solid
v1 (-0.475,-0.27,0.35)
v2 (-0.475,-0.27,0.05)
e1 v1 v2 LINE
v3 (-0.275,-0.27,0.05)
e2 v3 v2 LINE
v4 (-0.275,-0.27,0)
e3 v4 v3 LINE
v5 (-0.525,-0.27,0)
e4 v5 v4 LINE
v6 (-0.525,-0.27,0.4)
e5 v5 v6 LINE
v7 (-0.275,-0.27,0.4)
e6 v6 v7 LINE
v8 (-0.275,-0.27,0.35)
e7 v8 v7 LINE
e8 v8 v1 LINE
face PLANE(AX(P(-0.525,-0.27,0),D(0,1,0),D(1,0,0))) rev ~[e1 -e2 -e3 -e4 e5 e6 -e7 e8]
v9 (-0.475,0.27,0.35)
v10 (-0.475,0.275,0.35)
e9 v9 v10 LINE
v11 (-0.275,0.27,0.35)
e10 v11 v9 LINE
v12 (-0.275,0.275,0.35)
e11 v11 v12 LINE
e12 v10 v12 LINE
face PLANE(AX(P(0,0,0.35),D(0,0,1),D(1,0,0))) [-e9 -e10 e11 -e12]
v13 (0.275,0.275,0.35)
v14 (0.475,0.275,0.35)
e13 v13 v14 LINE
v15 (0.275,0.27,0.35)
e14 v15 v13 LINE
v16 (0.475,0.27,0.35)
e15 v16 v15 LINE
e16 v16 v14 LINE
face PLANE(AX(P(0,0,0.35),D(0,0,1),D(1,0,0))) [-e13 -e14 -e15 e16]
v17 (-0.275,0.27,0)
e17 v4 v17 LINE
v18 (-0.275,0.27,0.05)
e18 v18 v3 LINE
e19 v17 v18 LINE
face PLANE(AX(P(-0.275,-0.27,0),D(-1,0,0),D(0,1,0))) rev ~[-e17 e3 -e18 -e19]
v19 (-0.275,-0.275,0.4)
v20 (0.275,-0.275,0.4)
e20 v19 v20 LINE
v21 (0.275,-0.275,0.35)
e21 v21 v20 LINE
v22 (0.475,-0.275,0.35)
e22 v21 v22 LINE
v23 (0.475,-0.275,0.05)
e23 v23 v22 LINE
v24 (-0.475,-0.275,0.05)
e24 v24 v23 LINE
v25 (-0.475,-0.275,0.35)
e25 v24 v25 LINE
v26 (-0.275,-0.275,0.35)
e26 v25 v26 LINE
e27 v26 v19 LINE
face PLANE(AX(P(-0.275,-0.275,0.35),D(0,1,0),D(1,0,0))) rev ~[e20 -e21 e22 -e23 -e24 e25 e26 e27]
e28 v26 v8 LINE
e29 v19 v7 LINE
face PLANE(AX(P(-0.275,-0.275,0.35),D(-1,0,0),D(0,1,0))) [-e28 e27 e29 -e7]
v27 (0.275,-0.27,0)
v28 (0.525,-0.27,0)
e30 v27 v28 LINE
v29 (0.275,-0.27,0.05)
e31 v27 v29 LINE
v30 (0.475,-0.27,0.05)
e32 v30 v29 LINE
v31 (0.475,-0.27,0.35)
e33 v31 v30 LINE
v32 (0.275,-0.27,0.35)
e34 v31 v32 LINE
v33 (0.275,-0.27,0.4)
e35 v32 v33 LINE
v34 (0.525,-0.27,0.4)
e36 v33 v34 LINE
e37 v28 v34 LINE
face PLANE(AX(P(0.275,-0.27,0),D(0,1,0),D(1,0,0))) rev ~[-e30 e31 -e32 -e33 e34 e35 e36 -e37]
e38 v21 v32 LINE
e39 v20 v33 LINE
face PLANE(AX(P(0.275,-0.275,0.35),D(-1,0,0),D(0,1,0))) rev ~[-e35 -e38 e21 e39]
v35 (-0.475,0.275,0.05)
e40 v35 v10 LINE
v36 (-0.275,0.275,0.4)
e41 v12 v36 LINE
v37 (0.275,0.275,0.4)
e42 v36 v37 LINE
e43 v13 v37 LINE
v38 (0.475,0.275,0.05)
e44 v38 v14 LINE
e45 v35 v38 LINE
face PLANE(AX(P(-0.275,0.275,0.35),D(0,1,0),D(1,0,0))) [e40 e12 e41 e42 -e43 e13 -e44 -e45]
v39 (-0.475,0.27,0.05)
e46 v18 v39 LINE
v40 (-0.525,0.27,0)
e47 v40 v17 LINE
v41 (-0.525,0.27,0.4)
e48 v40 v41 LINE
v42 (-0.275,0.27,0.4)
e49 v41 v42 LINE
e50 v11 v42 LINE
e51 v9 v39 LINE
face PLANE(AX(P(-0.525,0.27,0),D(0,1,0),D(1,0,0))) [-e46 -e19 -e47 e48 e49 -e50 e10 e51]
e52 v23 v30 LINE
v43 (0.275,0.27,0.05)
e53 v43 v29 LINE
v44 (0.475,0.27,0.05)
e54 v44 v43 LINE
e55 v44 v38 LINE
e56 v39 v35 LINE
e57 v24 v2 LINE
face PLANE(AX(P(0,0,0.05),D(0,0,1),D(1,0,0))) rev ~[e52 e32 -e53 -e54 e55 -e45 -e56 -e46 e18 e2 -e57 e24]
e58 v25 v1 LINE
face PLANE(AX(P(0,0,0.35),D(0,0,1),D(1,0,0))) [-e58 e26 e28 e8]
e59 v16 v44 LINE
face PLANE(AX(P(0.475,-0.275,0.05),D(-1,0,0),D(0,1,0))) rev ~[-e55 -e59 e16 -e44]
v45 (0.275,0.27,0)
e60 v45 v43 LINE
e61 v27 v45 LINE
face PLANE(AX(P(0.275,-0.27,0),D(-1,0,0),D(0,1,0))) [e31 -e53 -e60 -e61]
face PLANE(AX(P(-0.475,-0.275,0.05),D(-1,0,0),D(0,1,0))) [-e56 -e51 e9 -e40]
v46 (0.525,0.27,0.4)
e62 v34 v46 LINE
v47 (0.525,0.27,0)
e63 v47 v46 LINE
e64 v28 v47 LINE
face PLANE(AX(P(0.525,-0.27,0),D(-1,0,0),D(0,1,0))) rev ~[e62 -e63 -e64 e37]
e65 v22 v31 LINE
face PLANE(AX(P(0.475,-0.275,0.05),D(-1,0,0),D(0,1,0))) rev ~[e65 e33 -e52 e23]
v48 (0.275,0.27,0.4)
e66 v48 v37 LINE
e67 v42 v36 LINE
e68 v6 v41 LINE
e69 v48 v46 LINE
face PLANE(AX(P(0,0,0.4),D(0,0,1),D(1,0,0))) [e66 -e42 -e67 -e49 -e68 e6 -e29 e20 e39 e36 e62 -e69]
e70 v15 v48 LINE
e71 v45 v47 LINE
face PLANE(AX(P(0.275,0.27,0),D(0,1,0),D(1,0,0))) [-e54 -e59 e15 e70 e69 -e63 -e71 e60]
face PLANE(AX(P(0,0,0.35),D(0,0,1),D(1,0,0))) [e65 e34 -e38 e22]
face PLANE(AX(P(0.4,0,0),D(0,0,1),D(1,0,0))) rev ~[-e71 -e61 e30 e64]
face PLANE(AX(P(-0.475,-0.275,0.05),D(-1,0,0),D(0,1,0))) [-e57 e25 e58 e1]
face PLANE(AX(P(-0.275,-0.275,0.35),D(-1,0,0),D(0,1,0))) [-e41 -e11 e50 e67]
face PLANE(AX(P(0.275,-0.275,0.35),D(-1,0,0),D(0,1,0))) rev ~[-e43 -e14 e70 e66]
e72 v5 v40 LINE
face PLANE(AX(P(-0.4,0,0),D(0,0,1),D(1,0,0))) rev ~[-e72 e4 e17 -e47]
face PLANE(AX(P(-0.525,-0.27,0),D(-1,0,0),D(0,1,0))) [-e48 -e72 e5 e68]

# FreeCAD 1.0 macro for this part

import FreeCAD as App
import Part
import Sketcher

doc = App.newDocument("Part")
body = doc.addObject("PartDesign::Body", "Body")

sketch1 = doc.addObject("Sketcher::SketchObject", "Sketch")
body.addObject(sketch1)
sketch1.AttachmentSupport = (doc.XY_Plane, [""])
sketch1.MapMode = "FlatFace"
sketch1.addGeometry([
    Part.LineSegment(App.Vector(-0.53, 0.27, 0), App.Vector(-0.53, -0.27, 0)),
    Part.LineSegment(App.Vector(-0.53, -0.27, 0), App.Vector(-0.28, -0.27, 0)),
    Part.LineSegment(App.Vector(-0.28, -0.27, 0), App.Vector(-0.28, 0.27, 0)),
    Part.LineSegment(App.Vector(-0.28, 0.27, 0), App.Vector(-0.53, 0.27, 0)),
], False)
sketch1.addConstraint([
    Sketcher.Constraint("Coincident", 0, 2, 1, 1),
    Sketcher.Constraint("Coincident", 1, 2, 2, 1),
    Sketcher.Constraint("Coincident", 2, 2, 3, 1),
    Sketcher.Constraint("Coincident", 3, 2, 0, 1),
    Sketcher.Constraint("Vertical", 0),
    Sketcher.Constraint("Horizontal", 1),
    Sketcher.Constraint("Vertical", 2),
    Sketcher.Constraint("Horizontal", 3),
    Sketcher.Constraint("DistanceX", 1, 1, 1, 2, 0.25),
    Sketcher.Constraint("DistanceY", 0, 2, 0, 1, 0.54),
    Sketcher.Constraint("DistanceY", 0, 2, -1, 1, 0.27),
    Sketcher.Constraint("DistanceX", 0, 2, -1, 1, 0.525),
])
pad1 = doc.addObject("PartDesign::Pad", "Pad")
body.addObject(pad1)
pad1.Profile = sketch1
pad1.Length = 0.4
body2 = doc.addObject("PartDesign::Body", "Body001")

sketch2 = doc.addObject("Sketcher::SketchObject", "Sketch001")
body2.addObject(sketch2)
sketch2.AttachmentSupport = (doc.getObject("XY_Plane001"), [""])
sketch2.MapMode = "FlatFace"
sketch2.addGeometry([
    Part.LineSegment(App.Vector(0.28, 0.27, 0), App.Vector(0.28, -0.27, 0)),
    Part.LineSegment(App.Vector(0.28, -0.27, 0), App.Vector(0.53, -0.27, 0)),
    Part.LineSegment(App.Vector(0.53, -0.27, 0), App.Vector(0.53, 0.27, 0)),
    Part.LineSegment(App.Vector(0.53, 0.27, 0), App.Vector(0.28, 0.27, 0)),
], False)
sketch2.addConstraint([
    Sketcher.Constraint("Coincident", 0, 2, 1, 1),
    Sketcher.Constraint("Coincident", 1, 2, 2, 1),
    Sketcher.Constraint("Coincident", 2, 2, 3, 1),
    Sketcher.Constraint("Coincident", 3, 2, 0, 1),
    Sketcher.Constraint("Vertical", 0),
    Sketcher.Constraint("Horizontal", 1),
    Sketcher.Constraint("Vertical", 2),
    Sketcher.Constraint("Horizontal", 3),
    Sketcher.Constraint("DistanceX", 1, 1, 1, 2, 0.25),
    Sketcher.Constraint("DistanceY", 0, 2, 0, 1, 0.54),
    Sketcher.Constraint("DistanceY", 0, 2, -1, 1, 0.27),
    Sketcher.Constraint("DistanceX", -1, 1, 0, 2, 0.275),
])
pad2 = doc.addObject("PartDesign::Pad", "Pad001")
body2.addObject(pad2)
pad2.Profile = sketch2
pad2.Length = 0.4
body3 = doc.addObject("PartDesign::Body", "Body002")

sketch3 = doc.addObject("Sketcher::SketchObject", "Sketch002")
body3.addObject(sketch3)
sketch3.AttachmentSupport = (doc.getObject("XY_Plane002"), [""])
sketch3.MapMode = "FlatFace"
sketch3.AttachmentOffset = App.Placement(App.Vector(0, 0, 0.35), App.Rotation())
sketch3.addGeometry([
    Part.LineSegment(App.Vector(-0.3, 0.3, 0), App.Vector(-0.3, -0.3, 0)),
    Part.LineSegment(App.Vector(-0.3, -0.3, 0), App.Vector(0.3, -0.3, 0)),
    Part.LineSegment(App.Vector(0.3, -0.3, 0), App.Vector(0.3, 0.3, 0)),
    Part.LineSegment(App.Vector(0.3, 0.3, 0), App.Vector(-0.3, 0.3, 0)),
], False)
sketch3.addConstraint([
    Sketcher.Constraint("Coincident", 0, 2, 1, 1),
    Sketcher.Constraint("Coincident", 1, 2, 2, 1),
    Sketcher.Constraint("Coincident", 2, 2, 3, 1),
    Sketcher.Constraint("Coincident", 3, 2, 0, 1),
    Sketcher.Constraint("Vertical", 0),
    Sketcher.Constraint("Horizontal", 1),
    Sketcher.Constraint("Vertical", 2),
    Sketcher.Constraint("Horizontal", 3),
    Sketcher.Constraint("Symmetric", 0, 2, 2, 2, -1, 1),
    Sketcher.Constraint("Equal", 3, 0),
    Sketcher.Constraint("DistanceX", 1, 1, 1, 2, 0.55),
])
pad3 = doc.addObject("PartDesign::Pad", "Pad002")
body3.addObject(pad3)
pad3.Profile = sketch3
pad3.Length = 0.05
body4 = doc.addObject("PartDesign::Body", "Body003")

sketch4 = doc.addObject("Sketcher::SketchObject", "Sketch003")
body4.addObject(sketch4)
sketch4.AttachmentSupport = (doc.getObject("XY_Plane003"), [""])
sketch4.MapMode = "FlatFace"
sketch4.AttachmentOffset = App.Placement(App.Vector(0, 0, 0.05), App.Rotation())
sketch4.addGeometry([
    Part.LineSegment(App.Vector(-0.5, 0.3, 0), App.Vector(-0.5, -0.3, 0)),
    Part.LineSegment(App.Vector(-0.5, -0.3, 0), App.Vector(0.5, -0.3, 0)),
    Part.LineSegment(App.Vector(0.5, -0.3, 0), App.Vector(0.5, 0.3, 0)),
    Part.LineSegment(App.Vector(0.5, 0.3, 0), App.Vector(-0.5, 0.3, 0)),
], False)
sketch4.addConstraint([
    Sketcher.Constraint("Coincident", 0, 2, 1, 1),
    Sketcher.Constraint("Coincident", 1, 2, 2, 1),
    Sketcher.Constraint("Coincident", 2, 2, 3, 1),
    Sketcher.Constraint("Coincident", 3, 2, 0, 1),
    Sketcher.Constraint("Vertical", 0),
    Sketcher.Constraint("Horizontal", 1),
    Sketcher.Constraint("Vertical", 2),
    Sketcher.Constraint("Horizontal", 3),
    Sketcher.Constraint("Symmetric", 0, 2, 2, 2, -1, 1),
    Sketcher.Constraint("DistanceX", 1, 1, 1, 2, 0.95),
    Sketcher.Constraint("DistanceY", 0, 2, 0, 1, 0.55),
])
pad4 = doc.addObject("PartDesign::Pad", "Pad003")
body4.addObject(pad4)
pad4.Profile = sketch4
pad4.Length = 0.3
doc.recompute()

boolean = doc.addObject("PartDesign::Boolean", "Boolean")
body4.addObject(boolean)
boolean.Type = "Fuse"
boolean.addObjects([body])
doc.recompute()

boolean2 = doc.addObject("PartDesign::Boolean", "Boolean001")
body4.addObject(boolean2)
boolean2.Type = "Fuse"
boolean2.addObjects([body2])
doc.recompute()

boolean3 = doc.addObject("PartDesign::Boolean", "Boolean002")
body4.addObject(boolean3)
boolean3.Type = "Fuse"
boolean3.addObjects([body3])

doc.recompute()
